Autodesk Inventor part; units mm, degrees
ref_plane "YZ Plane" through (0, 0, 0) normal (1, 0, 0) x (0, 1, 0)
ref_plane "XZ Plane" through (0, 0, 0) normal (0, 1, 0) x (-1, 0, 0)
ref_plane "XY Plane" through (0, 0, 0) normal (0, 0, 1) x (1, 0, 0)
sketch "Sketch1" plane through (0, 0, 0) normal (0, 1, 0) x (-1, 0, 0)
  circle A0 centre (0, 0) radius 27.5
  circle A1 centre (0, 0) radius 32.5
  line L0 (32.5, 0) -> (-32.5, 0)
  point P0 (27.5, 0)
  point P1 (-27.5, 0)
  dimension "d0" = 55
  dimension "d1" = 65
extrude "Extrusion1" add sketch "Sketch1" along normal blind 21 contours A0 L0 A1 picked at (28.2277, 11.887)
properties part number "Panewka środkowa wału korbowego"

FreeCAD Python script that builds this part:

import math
import FreeCAD as App
import Part
import Sketcher

V = App.Vector

doc = App.newDocument("Part")
params = doc.addObject("Spreadsheet::Sheet", "Params")
for row, (alias, value) in enumerate([
    ("sketch1_radius", "27.5 mm"),
    ("sketch1_radius2", "32.5 mm"),
    ("pad1_length", "21 mm"),
], start=1):
    params.set(f"A{row}", alias)
    params.set(f"B{row}", "=" + value)
    params.setAlias(f"B{row}", alias)

body = doc.addObject("PartDesign::Body", "Body")

# Sketch on XZ plane
sketch1 = body.newObject("Sketcher::SketchObject", "Sketch")
sketch1.AttachmentSupport = (doc.getObject("XZ_Plane"), [""])
sketch1.MapMode = "FlatFace"
sketch1.addGeometry(Part.ArcOfCircle(Part.Circle(V(0, 0, 0), V(0, 0, 1), 28), math.radians(0), math.radians(180)), False)
sketch1.addGeometry(Part.LineSegment(V(-28, 0, 0), V(-32, 0, 0)), False)
sketch1.addGeometry(Part.ArcOfCircle(Part.Circle(V(0, 0, 0), V(0, 0, 1), 32), math.radians(0), math.radians(180)), False)
sketch1.addGeometry(Part.LineSegment(V(32, 0, 0), V(28, 0, 0)), False)
sketch1.addConstraint(Sketcher.Constraint("Coincident", 0, 2, 1, 1))
sketch1.addConstraint(Sketcher.Constraint("Coincident", 1, 2, 2, 2))
sketch1.addConstraint(Sketcher.Constraint("Coincident", 2, 1, 3, 1))
sketch1.addConstraint(Sketcher.Constraint("Coincident", 3, 2, 0, 1))
sketch1.addConstraint(Sketcher.Constraint("Horizontal", 1))
sketch1.addConstraint(Sketcher.Constraint("Horizontal", 3))
sketch1.addConstraint(Sketcher.Constraint("Coincident", 0, 3, -1, 1))
sketch1.addConstraint(Sketcher.Constraint("Coincident", 2, 3, -1, 1))
sketch1.addConstraint(Sketcher.Constraint("PointOnObject", 0, 2, -1))
sketch1.addConstraint(Sketcher.Constraint("PointOnObject", 2, 1, -1))
sketch1.addConstraint(Sketcher.Constraint("Radius", 0, 27.5))
sketch1.addConstraint(Sketcher.Constraint("Radius", 2, 32.5))
sketch1.setExpression("Constraints[10]", "Params.sketch1_radius")
sketch1.setExpression("Constraints[11]", "Params.sketch1_radius2")
pad1 = body.newObject("PartDesign::Pad", "Pad")
pad1.Profile = sketch1
pad1.setExpression("Length", "Params.pad1_length")
pad1.Reversed = True

doc.recompute()
